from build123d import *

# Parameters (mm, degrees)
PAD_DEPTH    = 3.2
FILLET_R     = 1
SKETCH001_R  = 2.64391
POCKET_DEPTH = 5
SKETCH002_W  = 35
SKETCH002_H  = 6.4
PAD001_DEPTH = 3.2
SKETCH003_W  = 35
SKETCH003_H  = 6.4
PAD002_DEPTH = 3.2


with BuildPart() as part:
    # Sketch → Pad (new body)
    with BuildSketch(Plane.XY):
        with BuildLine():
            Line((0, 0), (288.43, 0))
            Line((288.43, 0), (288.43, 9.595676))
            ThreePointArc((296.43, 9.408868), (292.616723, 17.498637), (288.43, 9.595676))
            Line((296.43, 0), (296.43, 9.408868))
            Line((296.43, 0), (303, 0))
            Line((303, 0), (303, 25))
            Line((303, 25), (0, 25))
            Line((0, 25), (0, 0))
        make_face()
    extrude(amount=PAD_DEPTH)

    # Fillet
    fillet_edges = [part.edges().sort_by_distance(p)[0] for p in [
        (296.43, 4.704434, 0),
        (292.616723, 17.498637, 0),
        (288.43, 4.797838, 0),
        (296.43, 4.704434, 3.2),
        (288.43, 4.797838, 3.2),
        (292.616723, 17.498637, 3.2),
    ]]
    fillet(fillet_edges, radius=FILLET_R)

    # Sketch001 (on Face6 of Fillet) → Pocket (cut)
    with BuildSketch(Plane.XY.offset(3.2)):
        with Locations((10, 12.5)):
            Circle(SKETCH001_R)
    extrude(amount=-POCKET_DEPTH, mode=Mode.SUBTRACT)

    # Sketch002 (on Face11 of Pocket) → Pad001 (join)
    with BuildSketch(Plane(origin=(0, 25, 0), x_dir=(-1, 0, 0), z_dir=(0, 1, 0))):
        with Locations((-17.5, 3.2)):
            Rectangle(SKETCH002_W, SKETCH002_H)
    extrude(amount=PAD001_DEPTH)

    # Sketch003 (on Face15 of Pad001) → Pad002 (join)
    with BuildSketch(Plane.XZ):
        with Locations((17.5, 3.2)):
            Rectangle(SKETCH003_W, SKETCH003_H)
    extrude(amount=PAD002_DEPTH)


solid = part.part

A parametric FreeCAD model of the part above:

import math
import FreeCAD as App
import Part
import Sketcher
from FreeCAD import Vector


def edges_at(feature, points):
    """Names of the edges that pass closest to the given points."""
    edges = feature.Shape.Edges
    near = lambda p: min(range(len(edges)), key=lambda i: edges[i].distToShape(Part.Vertex(*p))[0])
    return sorted({f"Edge{near(p) + 1}" for p in points})


def add_polygon(sketch, points):
    """Adds a closed chain of lines whose ends are joined by coincident constraints."""
    first, n = sketch.GeometryCount, len(points)
    for a, b in zip(points, points[1:] + points[:1]):
        sketch.addGeometry(Part.LineSegment(App.Vector(*a, 0), App.Vector(*b, 0)), False)
    for i in range(n):
        sketch.addConstraint(Sketcher.Constraint("Coincident", first + i, 2, first + (i + 1) % n, 1))

doc = App.newDocument("Part")
body = doc.addObject("PartDesign::Body", "Body")

sketch1 = doc.addObject("Sketcher::SketchObject", "Sketch")
body.addObject(sketch1)
sketch1.AttachmentSupport = (doc.XY_Plane, [""])
sketch1.MapMode = "FlatFace"
sketch1.addGeometry(Part.LineSegment(Vector(0, 0, 0), Vector(288.4, 0, 0)), False)
sketch1.addGeometry(Part.LineSegment(Vector(288.4, 0, 0), Vector(288.4, 9.6, 0)), False)
sketch1.addGeometry(Part.ArcOfCircle(Part.Circle(Vector(292.5, 12.5, 0), Vector(0, 0, 1), 5), math.radians(-38), math.radians(216)), False)
sketch1.addGeometry(Part.LineSegment(Vector(296.4, 9.4, 0), Vector(296.4, 0, 0)), False)
sketch1.addGeometry(Part.LineSegment(Vector(296.4, 0, 0), Vector(303, 0, 0)), False)
sketch1.addGeometry(Part.LineSegment(Vector(303, 0, 0), Vector(303, 25, 0)), False)
sketch1.addGeometry(Part.LineSegment(Vector(303, 25, 0), Vector(0, 25, 0)), False)
sketch1.addGeometry(Part.LineSegment(Vector(0, 25, 0), Vector(0, 0, 0)), False)
sketch1.addConstraint(Sketcher.Constraint("Coincident", 0, 2, 1, 1))
sketch1.addConstraint(Sketcher.Constraint("Coincident", 1, 2, 2, 2))
sketch1.addConstraint(Sketcher.Constraint("Coincident", 2, 1, 3, 1))
sketch1.addConstraint(Sketcher.Constraint("Coincident", 3, 2, 4, 1))
sketch1.addConstraint(Sketcher.Constraint("Coincident", 4, 2, 5, 1))
sketch1.addConstraint(Sketcher.Constraint("Coincident", 5, 2, 6, 1))
sketch1.addConstraint(Sketcher.Constraint("Coincident", 6, 2, 7, 1))
sketch1.addConstraint(Sketcher.Constraint("Coincident", 7, 2, 0, 1))
sketch1.addConstraint(Sketcher.Constraint("Horizontal", 0))
sketch1.addConstraint(Sketcher.Constraint("Vertical", 1))
sketch1.addConstraint(Sketcher.Constraint("Vertical", 3))
sketch1.addConstraint(Sketcher.Constraint("Horizontal", 4))
sketch1.addConstraint(Sketcher.Constraint("Vertical", 5))
sketch1.addConstraint(Sketcher.Constraint("Horizontal", 6))
sketch1.addConstraint(Sketcher.Constraint("Vertical", 7))
sketch1.addConstraint(Sketcher.Constraint("Coincident", 7, 2, -1, 1))
sketch1.addConstraint(Sketcher.Constraint("PointOnObject", 3, 2, -1))
sketch1.addConstraint(Sketcher.Constraint("Radius", 2, 5.0))
sketch1.addConstraint(Sketcher.Constraint("DistanceX", 6, 2, 6, 1, 303.0))
sketch1.addConstraint(Sketcher.Constraint("DistanceY", 5, 1, 5, 2, 25.0))
sketch1.addConstraint(Sketcher.Constraint("DistanceX", 1, 2, 2, 1, 8.0))
sketch1.addConstraint(Sketcher.Constraint("DistanceX", 0, 1, 0, 2, 288.43))
sketch1.addConstraint(Sketcher.Constraint("DistanceX", -1, 1, 2, 3, 292.5))
sketch1.addConstraint(Sketcher.Constraint("DistanceY", -1, 1, 2, 3, 12.5))
pad1 = doc.addObject("PartDesign::Pad", "Pad")
body.addObject(pad1)
pad1.Profile = sketch1
pad1.Length = 3.2
doc.recompute()

fillet = doc.addObject("PartDesign::Fillet", "Fillet")
body.addObject(fillet)
fillet.Base = (pad1, edges_at(pad1, [
    (296.43, 4.704, 0),
    (292.617, 17.499, 0),
    (288.43, 4.798, 0),
    (296.43, 4.704, 3.2),
    (288.43, 4.798, 3.2),
    (292.617, 17.499, 3.2),
]))
fillet.Radius = 1

sketch2 = doc.addObject("Sketcher::SketchObject", "Sketch001")
body.addObject(sketch2)
sketch2.AttachmentSupport = (doc.XY_Plane, [""])
sketch2.MapMode = "FlatFace"
sketch2.AttachmentOffset = App.Placement(Vector(0, 0, 3.2), App.Rotation())
sketch2.addGeometry(Part.Circle(Vector(10, 12.5, 0), Vector(0, 0, 1), 2.6), False)
sketch2.addConstraint(Sketcher.Constraint("DistanceX", -1, 1, 0, 3, 10.0))
sketch2.addConstraint(Sketcher.Constraint("DistanceY", -1, 1, 0, 3, 12.5))
sketch2.addConstraint(Sketcher.Constraint("Diameter", 0, 5.28782))
pocket1 = doc.addObject("PartDesign::Pocket", "Pocket")
body.addObject(pocket1)
pocket1.Profile = sketch2
pocket1.Length = 5

sketch3 = doc.addObject("Sketcher::SketchObject", "Sketch002")
body.addObject(sketch3)
sketch3.AttachmentSupport = (doc.XZ_Plane, [""])
sketch3.MapMode = "FlatFace"
sketch3.AttachmentOffset = App.Placement(Vector(0, 0, -25), App.Rotation())
add_polygon(sketch3, [(35, 6), (35, 0), (0, 0), (0, 6)])
sketch3.addConstraint(Sketcher.Constraint("Vertical", 0))
sketch3.addConstraint(Sketcher.Constraint("Horizontal", 1))
sketch3.addConstraint(Sketcher.Constraint("Vertical", 2))
sketch3.addConstraint(Sketcher.Constraint("Horizontal", 3))
sketch3.addConstraint(Sketcher.Constraint("Coincident", 1, 2, -1, 1))
sketch3.addConstraint(Sketcher.Constraint("DistanceX", 1, 2, 1, 1, 35.0))
sketch3.addConstraint(Sketcher.Constraint("DistanceY", 0, 2, 0, 1, 6.4))
pad2 = doc.addObject("PartDesign::Pad", "Pad001")
body.addObject(pad2)
pad2.Profile = sketch3
pad2.Length = 3.2
pad2.Reversed = True

sketch4 = doc.addObject("Sketcher::SketchObject", "Sketch003")
body.addObject(sketch4)
sketch4.AttachmentSupport = (doc.XZ_Plane, [""])
sketch4.MapMode = "FlatFace"
add_polygon(sketch4, [(0, 6), (0, 0), (35, 0), (35, 6)])
sketch4.addConstraint(Sketcher.Constraint("Vertical", 0))
sketch4.addConstraint(Sketcher.Constraint("Horizontal", 1))
sketch4.addConstraint(Sketcher.Constraint("Vertical", 2))
sketch4.addConstraint(Sketcher.Constraint("Horizontal", 3))
sketch4.addConstraint(Sketcher.Constraint("Coincident", 0, 2, -1, 1))
sketch4.addConstraint(Sketcher.Constraint("DistanceX", 1, 1, 1, 2, 35.0))
sketch4.addConstraint(Sketcher.Constraint("DistanceY", 0, 2, 0, 1, 6.4))
pad3 = doc.addObject("PartDesign::Pad", "Pad002")
body.addObject(pad3)
pad3.Profile = sketch4
pad3.Length = 3.2

doc.recompute()
